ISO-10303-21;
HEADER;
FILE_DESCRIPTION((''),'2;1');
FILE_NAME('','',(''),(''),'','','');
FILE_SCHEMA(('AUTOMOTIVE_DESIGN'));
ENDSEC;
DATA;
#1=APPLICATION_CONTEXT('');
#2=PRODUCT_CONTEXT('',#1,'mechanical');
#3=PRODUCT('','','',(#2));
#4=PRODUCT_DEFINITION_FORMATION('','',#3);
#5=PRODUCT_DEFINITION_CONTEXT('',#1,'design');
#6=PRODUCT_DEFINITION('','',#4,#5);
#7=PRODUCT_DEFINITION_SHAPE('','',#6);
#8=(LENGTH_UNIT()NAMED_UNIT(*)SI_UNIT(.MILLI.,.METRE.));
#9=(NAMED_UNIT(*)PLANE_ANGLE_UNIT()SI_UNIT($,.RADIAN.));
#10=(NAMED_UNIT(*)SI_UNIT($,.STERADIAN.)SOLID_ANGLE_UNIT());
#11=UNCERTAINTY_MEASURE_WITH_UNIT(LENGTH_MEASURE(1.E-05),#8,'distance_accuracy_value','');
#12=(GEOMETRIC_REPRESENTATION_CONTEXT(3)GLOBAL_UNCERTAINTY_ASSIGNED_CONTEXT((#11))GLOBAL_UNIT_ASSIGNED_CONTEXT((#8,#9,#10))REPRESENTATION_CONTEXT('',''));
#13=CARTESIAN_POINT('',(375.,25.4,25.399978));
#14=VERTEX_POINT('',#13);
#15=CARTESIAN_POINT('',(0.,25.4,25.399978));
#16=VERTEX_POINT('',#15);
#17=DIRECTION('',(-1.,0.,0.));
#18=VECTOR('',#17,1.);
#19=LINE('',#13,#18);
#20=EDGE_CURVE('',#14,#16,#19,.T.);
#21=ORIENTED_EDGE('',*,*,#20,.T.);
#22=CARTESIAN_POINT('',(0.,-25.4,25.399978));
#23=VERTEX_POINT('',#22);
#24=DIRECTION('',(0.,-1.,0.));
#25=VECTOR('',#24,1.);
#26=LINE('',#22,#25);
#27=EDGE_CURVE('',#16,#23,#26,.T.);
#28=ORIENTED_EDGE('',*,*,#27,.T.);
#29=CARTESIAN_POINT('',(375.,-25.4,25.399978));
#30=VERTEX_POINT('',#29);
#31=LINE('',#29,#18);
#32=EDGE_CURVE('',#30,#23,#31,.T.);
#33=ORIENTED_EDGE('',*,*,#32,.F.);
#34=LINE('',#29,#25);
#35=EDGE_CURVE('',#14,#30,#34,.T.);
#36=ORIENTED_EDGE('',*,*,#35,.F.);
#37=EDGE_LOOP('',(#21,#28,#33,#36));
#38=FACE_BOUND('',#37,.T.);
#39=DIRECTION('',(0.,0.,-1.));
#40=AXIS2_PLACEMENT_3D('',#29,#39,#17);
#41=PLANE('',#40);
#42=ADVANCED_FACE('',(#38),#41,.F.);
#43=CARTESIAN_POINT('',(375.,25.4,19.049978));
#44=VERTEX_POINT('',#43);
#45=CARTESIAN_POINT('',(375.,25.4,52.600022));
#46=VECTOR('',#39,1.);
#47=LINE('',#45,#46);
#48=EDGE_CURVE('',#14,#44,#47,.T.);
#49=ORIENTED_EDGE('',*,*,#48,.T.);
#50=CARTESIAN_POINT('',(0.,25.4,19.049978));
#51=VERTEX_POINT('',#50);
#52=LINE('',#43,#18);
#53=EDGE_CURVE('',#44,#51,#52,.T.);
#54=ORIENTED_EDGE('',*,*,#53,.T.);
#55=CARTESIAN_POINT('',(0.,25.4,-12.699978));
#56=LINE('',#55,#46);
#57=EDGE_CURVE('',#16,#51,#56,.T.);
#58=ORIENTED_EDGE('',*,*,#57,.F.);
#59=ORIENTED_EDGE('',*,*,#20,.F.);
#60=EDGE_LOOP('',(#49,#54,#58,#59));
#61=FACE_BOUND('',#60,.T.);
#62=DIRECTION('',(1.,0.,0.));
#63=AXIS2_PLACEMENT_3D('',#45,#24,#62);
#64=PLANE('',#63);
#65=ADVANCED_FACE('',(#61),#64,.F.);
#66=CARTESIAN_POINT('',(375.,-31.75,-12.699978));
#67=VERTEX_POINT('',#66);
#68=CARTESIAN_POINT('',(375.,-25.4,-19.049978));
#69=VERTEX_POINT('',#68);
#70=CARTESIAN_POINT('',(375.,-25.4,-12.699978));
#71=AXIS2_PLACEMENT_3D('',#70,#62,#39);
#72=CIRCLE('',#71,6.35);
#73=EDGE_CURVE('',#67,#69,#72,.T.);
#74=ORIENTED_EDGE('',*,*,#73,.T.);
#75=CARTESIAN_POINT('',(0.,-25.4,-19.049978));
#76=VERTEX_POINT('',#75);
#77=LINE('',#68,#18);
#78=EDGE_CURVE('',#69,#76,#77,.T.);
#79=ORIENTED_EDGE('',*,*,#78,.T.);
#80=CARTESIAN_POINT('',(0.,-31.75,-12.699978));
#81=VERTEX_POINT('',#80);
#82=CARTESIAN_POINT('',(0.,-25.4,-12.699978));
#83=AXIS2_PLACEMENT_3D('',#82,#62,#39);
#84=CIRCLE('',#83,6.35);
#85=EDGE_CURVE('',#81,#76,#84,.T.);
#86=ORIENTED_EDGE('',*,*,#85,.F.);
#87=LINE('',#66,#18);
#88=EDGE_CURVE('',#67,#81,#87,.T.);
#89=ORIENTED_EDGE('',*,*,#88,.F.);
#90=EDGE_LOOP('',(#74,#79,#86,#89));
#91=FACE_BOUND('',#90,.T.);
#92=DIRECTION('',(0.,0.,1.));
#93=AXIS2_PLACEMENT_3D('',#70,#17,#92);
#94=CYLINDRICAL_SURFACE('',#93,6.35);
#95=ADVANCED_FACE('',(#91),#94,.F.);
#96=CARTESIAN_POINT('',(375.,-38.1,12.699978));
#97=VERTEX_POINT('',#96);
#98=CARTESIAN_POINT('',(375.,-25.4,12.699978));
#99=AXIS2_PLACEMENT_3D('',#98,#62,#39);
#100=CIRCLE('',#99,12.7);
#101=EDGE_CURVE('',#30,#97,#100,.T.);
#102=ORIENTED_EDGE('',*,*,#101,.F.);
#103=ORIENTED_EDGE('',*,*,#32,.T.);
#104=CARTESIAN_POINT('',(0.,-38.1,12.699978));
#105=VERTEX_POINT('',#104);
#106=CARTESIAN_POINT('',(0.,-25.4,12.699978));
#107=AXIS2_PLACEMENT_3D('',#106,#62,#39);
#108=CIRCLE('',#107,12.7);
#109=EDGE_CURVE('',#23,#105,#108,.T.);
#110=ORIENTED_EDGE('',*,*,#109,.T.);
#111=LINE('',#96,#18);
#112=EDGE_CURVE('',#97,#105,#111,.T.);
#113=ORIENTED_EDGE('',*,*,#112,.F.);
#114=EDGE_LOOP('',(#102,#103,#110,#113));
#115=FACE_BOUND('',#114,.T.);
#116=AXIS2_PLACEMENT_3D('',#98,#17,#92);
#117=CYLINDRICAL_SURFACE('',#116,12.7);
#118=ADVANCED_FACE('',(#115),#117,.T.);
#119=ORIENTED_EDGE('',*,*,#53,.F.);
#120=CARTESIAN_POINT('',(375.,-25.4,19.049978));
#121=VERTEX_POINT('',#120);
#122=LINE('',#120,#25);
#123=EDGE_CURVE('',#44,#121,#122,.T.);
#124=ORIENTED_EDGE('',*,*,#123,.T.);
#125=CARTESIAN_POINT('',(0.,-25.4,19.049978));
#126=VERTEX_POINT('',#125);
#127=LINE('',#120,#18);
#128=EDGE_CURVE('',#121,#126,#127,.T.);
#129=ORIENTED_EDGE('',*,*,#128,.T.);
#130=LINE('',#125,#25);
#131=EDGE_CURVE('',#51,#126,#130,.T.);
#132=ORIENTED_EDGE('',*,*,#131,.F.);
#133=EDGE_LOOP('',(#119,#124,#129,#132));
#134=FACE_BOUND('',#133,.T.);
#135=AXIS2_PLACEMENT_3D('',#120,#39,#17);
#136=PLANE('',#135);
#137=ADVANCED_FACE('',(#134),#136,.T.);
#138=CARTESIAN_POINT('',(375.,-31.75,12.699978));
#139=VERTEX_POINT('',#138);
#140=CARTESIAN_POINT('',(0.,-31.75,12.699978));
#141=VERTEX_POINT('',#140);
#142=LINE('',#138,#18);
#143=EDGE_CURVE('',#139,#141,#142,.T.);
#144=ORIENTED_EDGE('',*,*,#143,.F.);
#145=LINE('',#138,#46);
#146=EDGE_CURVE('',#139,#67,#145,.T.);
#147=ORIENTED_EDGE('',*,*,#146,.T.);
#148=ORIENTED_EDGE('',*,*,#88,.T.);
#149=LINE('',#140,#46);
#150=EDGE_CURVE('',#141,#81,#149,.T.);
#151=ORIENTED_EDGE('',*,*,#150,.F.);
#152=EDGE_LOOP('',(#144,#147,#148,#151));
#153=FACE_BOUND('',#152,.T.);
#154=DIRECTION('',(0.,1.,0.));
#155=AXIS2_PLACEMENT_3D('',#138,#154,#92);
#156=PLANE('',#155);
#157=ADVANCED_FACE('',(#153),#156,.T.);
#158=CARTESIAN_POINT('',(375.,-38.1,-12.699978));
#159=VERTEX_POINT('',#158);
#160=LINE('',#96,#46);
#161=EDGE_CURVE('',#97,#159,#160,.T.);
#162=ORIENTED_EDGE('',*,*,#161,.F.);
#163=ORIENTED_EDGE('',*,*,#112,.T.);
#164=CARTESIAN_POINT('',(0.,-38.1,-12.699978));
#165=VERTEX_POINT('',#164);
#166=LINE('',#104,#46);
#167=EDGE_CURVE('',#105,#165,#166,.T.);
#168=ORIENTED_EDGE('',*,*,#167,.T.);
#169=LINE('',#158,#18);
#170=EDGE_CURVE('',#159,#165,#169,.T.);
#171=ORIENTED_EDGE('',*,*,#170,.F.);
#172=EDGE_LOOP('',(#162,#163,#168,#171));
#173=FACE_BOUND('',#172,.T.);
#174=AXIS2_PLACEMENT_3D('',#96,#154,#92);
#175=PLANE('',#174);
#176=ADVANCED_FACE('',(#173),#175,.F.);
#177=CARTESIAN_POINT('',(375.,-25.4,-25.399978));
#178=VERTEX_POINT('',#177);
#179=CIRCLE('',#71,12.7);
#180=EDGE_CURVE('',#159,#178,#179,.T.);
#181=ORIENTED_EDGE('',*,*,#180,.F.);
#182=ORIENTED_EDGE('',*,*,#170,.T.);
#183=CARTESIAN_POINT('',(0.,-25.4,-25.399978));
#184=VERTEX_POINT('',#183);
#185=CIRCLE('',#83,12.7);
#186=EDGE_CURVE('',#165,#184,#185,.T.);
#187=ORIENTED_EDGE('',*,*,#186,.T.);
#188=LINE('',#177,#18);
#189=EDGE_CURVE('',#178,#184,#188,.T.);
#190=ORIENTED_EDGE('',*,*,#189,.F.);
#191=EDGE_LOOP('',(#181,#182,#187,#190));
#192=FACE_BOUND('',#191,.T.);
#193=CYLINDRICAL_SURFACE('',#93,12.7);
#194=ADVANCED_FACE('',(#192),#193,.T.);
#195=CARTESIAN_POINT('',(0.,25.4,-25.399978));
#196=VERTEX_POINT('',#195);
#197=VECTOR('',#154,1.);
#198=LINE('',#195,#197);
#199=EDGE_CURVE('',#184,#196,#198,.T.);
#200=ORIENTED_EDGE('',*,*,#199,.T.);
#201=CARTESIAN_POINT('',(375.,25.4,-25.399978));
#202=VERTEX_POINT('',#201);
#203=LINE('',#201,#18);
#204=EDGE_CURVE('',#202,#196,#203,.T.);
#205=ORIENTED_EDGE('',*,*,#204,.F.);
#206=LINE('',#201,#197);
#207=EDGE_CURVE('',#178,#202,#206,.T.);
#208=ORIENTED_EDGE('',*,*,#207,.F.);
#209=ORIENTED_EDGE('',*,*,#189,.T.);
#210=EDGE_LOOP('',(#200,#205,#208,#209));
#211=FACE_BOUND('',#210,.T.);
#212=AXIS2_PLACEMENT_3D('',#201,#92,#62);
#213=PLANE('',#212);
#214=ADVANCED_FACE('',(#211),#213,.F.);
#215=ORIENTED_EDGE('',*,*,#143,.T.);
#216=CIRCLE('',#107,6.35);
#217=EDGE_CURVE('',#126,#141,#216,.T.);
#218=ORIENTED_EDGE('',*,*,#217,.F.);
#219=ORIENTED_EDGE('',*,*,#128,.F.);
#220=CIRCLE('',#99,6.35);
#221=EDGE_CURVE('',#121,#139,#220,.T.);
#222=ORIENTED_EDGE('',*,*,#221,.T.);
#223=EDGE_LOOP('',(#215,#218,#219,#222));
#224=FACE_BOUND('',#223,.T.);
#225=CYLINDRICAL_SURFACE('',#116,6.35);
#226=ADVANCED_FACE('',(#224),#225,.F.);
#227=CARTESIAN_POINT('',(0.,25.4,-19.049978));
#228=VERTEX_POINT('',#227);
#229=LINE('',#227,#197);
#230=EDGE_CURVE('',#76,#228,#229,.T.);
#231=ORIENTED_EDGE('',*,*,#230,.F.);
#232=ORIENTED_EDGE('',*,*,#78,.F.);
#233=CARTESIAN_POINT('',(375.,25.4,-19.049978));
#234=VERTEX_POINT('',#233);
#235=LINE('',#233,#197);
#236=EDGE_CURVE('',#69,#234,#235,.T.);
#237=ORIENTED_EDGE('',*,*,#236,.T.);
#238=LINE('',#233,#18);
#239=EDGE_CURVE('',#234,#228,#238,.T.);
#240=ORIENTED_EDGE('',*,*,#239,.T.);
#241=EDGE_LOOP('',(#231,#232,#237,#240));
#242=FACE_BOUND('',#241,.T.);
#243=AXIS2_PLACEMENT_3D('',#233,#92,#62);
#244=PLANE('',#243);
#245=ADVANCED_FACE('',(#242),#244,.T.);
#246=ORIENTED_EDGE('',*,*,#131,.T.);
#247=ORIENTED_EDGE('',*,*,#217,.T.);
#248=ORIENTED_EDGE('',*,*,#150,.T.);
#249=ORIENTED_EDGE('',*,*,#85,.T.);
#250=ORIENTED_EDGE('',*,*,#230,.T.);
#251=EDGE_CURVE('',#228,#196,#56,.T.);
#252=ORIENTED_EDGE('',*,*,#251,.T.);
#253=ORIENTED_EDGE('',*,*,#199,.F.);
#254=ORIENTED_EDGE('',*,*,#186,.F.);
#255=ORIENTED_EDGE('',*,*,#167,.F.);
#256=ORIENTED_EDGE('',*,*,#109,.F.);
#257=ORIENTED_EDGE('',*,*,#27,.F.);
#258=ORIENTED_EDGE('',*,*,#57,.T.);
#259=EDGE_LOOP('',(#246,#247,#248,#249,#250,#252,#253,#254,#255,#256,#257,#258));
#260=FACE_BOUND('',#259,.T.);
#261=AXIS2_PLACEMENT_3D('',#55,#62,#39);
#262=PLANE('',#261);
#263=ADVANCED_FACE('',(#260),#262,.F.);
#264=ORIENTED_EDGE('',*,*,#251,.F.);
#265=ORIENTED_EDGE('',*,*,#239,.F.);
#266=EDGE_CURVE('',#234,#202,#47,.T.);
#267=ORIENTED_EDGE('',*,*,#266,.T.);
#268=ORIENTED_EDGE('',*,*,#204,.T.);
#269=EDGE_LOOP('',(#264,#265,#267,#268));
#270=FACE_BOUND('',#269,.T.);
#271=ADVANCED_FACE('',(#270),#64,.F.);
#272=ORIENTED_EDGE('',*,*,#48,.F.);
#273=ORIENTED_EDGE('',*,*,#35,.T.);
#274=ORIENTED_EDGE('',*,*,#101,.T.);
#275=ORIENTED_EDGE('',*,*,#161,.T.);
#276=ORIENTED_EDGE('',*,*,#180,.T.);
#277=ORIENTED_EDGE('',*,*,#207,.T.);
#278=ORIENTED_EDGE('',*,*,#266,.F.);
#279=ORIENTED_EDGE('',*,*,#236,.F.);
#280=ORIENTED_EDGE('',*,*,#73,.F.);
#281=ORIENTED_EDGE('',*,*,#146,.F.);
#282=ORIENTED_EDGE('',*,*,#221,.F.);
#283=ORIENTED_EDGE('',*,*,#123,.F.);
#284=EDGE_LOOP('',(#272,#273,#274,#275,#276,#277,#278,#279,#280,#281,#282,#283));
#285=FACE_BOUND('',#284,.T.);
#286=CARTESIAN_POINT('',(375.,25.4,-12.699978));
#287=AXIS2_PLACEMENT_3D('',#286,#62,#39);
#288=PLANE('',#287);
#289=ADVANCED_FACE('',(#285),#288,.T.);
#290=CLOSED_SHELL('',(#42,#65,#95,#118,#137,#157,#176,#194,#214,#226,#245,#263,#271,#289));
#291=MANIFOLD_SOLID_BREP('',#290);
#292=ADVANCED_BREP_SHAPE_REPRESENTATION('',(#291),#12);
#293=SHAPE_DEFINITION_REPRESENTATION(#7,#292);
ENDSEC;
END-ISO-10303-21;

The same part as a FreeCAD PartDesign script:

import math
import FreeCAD as App
import Part
import Sketcher

V = App.Vector
Q = App.Units.Quantity

doc = App.newDocument("Part")
body = doc.addObject("PartDesign::Body", "Body")

sketch1 = body.newObject("Sketcher::SketchObject", "Sketch")
sketch1.AttachmentSupport = (doc.getObject("YZ_Plane"), [""])
sketch1.MapMode = "FlatFace"
sketch1.addGeometry([
    Part.LineSegment(V(-38, 13, 0), V(-38, -13, 0)),
    Part.ArcOfCircle(Part.Circle(V(-25, -13, 0), V(0, 0, 1), 13), math.radians(180), math.radians(270)),
    Part.LineSegment(V(-25, -25, 0), V(25, -25, 0)),
    Part.ArcOfCircle(Part.Circle(V(25, -13, 0), V(0, 0, 1), 13), math.radians(-90), math.radians(0)),
    Part.LineSegment(V(38, -13, 0), V(38, 13, 0)),
    Part.ArcOfCircle(Part.Circle(V(25, 13, 0), V(0, 0, 1), 13), math.radians(0), math.radians(90)),
    Part.LineSegment(V(25, 25, 0), V(-25, 25, 0)),
    Part.ArcOfCircle(Part.Circle(V(-25, 13, 0), V(0, 0, 1), 13), math.radians(90), math.radians(180)),
    Part.LineSegment(V(-32, -13, 0), V(-32, 13, 0)),
    Part.ArcOfCircle(Part.Circle(V(-25, 13, 0), V(0, 0, 1), 6), math.radians(90), math.radians(180)),
    Part.LineSegment(V(-25, 19, 0), V(25, 19, 0)),
    Part.ArcOfCircle(Part.Circle(V(25, 13, 0), V(0, 0, 1), 6), math.radians(0), math.radians(90)),
    Part.LineSegment(V(32, 13, 0), V(32, -13, 0)),
    Part.ArcOfCircle(Part.Circle(V(25, -13, 0), V(0, 0, 1), 6), math.radians(-90), math.radians(0)),
    Part.LineSegment(V(25, -19, 0), V(-25, -19, 0)),
    Part.ArcOfCircle(Part.Circle(V(-25, -13, 0), V(0, 0, 1), 6), math.radians(180), math.radians(270)),
], False)
sketch1.addConstraint([
    Sketcher.Constraint("Tangent", 0, 2, 1, 1),
    Sketcher.Constraint("Tangent", 1, 2, 2, 1),
    Sketcher.Constraint("Tangent", 2, 2, 3, 1),
    Sketcher.Constraint("Tangent", 3, 2, 4, 1),
    Sketcher.Constraint("Tangent", 4, 2, 5, 1),
    Sketcher.Constraint("Tangent", 5, 2, 6, 1),
    Sketcher.Constraint("Tangent", 6, 2, 7, 1),
    Sketcher.Constraint("Tangent", 7, 2, 0, 1),
    Sketcher.Constraint("Tangent", 8, 2, 9, 2),
    Sketcher.Constraint("Tangent", 9, 1, 10, 1),
    Sketcher.Constraint("Tangent", 10, 2, 11, 2),
    Sketcher.Constraint("Tangent", 11, 1, 12, 1),
    Sketcher.Constraint("Tangent", 12, 2, 13, 2),
    Sketcher.Constraint("Tangent", 13, 1, 14, 1),
    Sketcher.Constraint("Tangent", 14, 2, 15, 2),
    Sketcher.Constraint("Tangent", 15, 1, 8, 1),
    Sketcher.Constraint("Vertical", 0),
    Sketcher.Constraint("Horizontal", 2),
    Sketcher.Constraint("Vertical", 4),
    Sketcher.Constraint("Horizontal", 6),
    Sketcher.Constraint("Vertical", 8),
    Sketcher.Constraint("Horizontal", 10),
    Sketcher.Constraint("Vertical", 12),
    Sketcher.Constraint("Horizontal", 14),
    Sketcher.Constraint("Coincident", 9, 3, 7, 3),
    Sketcher.Constraint("Coincident", 11, 3, 5, 3),
    Sketcher.Constraint("Coincident", 13, 3, 3, 3),
    Sketcher.Constraint("Equal", 1, 3),
    Sketcher.Constraint("Equal", 3, 5),
    Sketcher.Constraint("Equal", 5, 7),
    Sketcher.Constraint("Equal", 13, 15),
    Sketcher.Constraint("Symmetric", 1, 3, 5, 3, -1, 1),
    Sketcher.Constraint("Radius", 1, Q("0.5 in")),
    Sketcher.Constraint("DistanceX", 2, 1, 2, 2, Q("2 in")),
    Sketcher.Constraint("Radius", 9, Q("0.25 in")),
    Sketcher.Constraint("DistanceY", 0, 2, 0, 1, Q("25.399956 mm")),
])
pad1 = body.newObject("PartDesign::Pad", "Pad")
pad1.Profile = sketch1
pad1.Length = 375

sketch2 = body.newObject("Sketcher::SketchObject", "Sketch001")
sketch2.AttachmentSupport = (doc.getObject("XY_Plane"), [""])
sketch2.MapMode = "FlatFace"
sketch2.AttachmentOffset = App.Placement(V(0, 0, -25.399978), App.Rotation())
sketch2.addGeometry([
    Part.LineSegment(V(375, 38, 0), V(375, 25, 0)),
    Part.LineSegment(V(375, 25, 0), V(0, 25, 0)),
    Part.LineSegment(V(0, 25, 0), V(0, 38, 0)),
    Part.LineSegment(V(0, 38, 0), V(375, 38, 0)),
], False)
sketch2.addConstraint([
    Sketcher.Constraint("Coincident", 0, 2, 1, 1),
    Sketcher.Constraint("Coincident", 1, 2, 2, 1),
    Sketcher.Constraint("Coincident", 2, 2, 3, 1),
    Sketcher.Constraint("Coincident", 3, 2, 0, 1),
    Sketcher.Constraint("Vertical", 0),
    Sketcher.Constraint("Horizontal", 1),
    Sketcher.Constraint("Vertical", 2),
    Sketcher.Constraint("Horizontal", 3),
    Sketcher.Constraint("PointOnObject", 1, 2, -2),
    Sketcher.Constraint("DistanceY", 0, 2, 0, 1, Q("0.5 in")),
    Sketcher.Constraint("DistanceY", -1, 1, 0, 2, Q("1 in")),
    Sketcher.Constraint("DistanceX", 1, 2, 1, 1, Q("375 mm")),
])
pocket1 = body.newObject("PartDesign::Pocket", "Pocket")
pocket1.Profile = sketch2
pocket1.Length = 78
pocket1.Reversed = True

doc.recompute()
